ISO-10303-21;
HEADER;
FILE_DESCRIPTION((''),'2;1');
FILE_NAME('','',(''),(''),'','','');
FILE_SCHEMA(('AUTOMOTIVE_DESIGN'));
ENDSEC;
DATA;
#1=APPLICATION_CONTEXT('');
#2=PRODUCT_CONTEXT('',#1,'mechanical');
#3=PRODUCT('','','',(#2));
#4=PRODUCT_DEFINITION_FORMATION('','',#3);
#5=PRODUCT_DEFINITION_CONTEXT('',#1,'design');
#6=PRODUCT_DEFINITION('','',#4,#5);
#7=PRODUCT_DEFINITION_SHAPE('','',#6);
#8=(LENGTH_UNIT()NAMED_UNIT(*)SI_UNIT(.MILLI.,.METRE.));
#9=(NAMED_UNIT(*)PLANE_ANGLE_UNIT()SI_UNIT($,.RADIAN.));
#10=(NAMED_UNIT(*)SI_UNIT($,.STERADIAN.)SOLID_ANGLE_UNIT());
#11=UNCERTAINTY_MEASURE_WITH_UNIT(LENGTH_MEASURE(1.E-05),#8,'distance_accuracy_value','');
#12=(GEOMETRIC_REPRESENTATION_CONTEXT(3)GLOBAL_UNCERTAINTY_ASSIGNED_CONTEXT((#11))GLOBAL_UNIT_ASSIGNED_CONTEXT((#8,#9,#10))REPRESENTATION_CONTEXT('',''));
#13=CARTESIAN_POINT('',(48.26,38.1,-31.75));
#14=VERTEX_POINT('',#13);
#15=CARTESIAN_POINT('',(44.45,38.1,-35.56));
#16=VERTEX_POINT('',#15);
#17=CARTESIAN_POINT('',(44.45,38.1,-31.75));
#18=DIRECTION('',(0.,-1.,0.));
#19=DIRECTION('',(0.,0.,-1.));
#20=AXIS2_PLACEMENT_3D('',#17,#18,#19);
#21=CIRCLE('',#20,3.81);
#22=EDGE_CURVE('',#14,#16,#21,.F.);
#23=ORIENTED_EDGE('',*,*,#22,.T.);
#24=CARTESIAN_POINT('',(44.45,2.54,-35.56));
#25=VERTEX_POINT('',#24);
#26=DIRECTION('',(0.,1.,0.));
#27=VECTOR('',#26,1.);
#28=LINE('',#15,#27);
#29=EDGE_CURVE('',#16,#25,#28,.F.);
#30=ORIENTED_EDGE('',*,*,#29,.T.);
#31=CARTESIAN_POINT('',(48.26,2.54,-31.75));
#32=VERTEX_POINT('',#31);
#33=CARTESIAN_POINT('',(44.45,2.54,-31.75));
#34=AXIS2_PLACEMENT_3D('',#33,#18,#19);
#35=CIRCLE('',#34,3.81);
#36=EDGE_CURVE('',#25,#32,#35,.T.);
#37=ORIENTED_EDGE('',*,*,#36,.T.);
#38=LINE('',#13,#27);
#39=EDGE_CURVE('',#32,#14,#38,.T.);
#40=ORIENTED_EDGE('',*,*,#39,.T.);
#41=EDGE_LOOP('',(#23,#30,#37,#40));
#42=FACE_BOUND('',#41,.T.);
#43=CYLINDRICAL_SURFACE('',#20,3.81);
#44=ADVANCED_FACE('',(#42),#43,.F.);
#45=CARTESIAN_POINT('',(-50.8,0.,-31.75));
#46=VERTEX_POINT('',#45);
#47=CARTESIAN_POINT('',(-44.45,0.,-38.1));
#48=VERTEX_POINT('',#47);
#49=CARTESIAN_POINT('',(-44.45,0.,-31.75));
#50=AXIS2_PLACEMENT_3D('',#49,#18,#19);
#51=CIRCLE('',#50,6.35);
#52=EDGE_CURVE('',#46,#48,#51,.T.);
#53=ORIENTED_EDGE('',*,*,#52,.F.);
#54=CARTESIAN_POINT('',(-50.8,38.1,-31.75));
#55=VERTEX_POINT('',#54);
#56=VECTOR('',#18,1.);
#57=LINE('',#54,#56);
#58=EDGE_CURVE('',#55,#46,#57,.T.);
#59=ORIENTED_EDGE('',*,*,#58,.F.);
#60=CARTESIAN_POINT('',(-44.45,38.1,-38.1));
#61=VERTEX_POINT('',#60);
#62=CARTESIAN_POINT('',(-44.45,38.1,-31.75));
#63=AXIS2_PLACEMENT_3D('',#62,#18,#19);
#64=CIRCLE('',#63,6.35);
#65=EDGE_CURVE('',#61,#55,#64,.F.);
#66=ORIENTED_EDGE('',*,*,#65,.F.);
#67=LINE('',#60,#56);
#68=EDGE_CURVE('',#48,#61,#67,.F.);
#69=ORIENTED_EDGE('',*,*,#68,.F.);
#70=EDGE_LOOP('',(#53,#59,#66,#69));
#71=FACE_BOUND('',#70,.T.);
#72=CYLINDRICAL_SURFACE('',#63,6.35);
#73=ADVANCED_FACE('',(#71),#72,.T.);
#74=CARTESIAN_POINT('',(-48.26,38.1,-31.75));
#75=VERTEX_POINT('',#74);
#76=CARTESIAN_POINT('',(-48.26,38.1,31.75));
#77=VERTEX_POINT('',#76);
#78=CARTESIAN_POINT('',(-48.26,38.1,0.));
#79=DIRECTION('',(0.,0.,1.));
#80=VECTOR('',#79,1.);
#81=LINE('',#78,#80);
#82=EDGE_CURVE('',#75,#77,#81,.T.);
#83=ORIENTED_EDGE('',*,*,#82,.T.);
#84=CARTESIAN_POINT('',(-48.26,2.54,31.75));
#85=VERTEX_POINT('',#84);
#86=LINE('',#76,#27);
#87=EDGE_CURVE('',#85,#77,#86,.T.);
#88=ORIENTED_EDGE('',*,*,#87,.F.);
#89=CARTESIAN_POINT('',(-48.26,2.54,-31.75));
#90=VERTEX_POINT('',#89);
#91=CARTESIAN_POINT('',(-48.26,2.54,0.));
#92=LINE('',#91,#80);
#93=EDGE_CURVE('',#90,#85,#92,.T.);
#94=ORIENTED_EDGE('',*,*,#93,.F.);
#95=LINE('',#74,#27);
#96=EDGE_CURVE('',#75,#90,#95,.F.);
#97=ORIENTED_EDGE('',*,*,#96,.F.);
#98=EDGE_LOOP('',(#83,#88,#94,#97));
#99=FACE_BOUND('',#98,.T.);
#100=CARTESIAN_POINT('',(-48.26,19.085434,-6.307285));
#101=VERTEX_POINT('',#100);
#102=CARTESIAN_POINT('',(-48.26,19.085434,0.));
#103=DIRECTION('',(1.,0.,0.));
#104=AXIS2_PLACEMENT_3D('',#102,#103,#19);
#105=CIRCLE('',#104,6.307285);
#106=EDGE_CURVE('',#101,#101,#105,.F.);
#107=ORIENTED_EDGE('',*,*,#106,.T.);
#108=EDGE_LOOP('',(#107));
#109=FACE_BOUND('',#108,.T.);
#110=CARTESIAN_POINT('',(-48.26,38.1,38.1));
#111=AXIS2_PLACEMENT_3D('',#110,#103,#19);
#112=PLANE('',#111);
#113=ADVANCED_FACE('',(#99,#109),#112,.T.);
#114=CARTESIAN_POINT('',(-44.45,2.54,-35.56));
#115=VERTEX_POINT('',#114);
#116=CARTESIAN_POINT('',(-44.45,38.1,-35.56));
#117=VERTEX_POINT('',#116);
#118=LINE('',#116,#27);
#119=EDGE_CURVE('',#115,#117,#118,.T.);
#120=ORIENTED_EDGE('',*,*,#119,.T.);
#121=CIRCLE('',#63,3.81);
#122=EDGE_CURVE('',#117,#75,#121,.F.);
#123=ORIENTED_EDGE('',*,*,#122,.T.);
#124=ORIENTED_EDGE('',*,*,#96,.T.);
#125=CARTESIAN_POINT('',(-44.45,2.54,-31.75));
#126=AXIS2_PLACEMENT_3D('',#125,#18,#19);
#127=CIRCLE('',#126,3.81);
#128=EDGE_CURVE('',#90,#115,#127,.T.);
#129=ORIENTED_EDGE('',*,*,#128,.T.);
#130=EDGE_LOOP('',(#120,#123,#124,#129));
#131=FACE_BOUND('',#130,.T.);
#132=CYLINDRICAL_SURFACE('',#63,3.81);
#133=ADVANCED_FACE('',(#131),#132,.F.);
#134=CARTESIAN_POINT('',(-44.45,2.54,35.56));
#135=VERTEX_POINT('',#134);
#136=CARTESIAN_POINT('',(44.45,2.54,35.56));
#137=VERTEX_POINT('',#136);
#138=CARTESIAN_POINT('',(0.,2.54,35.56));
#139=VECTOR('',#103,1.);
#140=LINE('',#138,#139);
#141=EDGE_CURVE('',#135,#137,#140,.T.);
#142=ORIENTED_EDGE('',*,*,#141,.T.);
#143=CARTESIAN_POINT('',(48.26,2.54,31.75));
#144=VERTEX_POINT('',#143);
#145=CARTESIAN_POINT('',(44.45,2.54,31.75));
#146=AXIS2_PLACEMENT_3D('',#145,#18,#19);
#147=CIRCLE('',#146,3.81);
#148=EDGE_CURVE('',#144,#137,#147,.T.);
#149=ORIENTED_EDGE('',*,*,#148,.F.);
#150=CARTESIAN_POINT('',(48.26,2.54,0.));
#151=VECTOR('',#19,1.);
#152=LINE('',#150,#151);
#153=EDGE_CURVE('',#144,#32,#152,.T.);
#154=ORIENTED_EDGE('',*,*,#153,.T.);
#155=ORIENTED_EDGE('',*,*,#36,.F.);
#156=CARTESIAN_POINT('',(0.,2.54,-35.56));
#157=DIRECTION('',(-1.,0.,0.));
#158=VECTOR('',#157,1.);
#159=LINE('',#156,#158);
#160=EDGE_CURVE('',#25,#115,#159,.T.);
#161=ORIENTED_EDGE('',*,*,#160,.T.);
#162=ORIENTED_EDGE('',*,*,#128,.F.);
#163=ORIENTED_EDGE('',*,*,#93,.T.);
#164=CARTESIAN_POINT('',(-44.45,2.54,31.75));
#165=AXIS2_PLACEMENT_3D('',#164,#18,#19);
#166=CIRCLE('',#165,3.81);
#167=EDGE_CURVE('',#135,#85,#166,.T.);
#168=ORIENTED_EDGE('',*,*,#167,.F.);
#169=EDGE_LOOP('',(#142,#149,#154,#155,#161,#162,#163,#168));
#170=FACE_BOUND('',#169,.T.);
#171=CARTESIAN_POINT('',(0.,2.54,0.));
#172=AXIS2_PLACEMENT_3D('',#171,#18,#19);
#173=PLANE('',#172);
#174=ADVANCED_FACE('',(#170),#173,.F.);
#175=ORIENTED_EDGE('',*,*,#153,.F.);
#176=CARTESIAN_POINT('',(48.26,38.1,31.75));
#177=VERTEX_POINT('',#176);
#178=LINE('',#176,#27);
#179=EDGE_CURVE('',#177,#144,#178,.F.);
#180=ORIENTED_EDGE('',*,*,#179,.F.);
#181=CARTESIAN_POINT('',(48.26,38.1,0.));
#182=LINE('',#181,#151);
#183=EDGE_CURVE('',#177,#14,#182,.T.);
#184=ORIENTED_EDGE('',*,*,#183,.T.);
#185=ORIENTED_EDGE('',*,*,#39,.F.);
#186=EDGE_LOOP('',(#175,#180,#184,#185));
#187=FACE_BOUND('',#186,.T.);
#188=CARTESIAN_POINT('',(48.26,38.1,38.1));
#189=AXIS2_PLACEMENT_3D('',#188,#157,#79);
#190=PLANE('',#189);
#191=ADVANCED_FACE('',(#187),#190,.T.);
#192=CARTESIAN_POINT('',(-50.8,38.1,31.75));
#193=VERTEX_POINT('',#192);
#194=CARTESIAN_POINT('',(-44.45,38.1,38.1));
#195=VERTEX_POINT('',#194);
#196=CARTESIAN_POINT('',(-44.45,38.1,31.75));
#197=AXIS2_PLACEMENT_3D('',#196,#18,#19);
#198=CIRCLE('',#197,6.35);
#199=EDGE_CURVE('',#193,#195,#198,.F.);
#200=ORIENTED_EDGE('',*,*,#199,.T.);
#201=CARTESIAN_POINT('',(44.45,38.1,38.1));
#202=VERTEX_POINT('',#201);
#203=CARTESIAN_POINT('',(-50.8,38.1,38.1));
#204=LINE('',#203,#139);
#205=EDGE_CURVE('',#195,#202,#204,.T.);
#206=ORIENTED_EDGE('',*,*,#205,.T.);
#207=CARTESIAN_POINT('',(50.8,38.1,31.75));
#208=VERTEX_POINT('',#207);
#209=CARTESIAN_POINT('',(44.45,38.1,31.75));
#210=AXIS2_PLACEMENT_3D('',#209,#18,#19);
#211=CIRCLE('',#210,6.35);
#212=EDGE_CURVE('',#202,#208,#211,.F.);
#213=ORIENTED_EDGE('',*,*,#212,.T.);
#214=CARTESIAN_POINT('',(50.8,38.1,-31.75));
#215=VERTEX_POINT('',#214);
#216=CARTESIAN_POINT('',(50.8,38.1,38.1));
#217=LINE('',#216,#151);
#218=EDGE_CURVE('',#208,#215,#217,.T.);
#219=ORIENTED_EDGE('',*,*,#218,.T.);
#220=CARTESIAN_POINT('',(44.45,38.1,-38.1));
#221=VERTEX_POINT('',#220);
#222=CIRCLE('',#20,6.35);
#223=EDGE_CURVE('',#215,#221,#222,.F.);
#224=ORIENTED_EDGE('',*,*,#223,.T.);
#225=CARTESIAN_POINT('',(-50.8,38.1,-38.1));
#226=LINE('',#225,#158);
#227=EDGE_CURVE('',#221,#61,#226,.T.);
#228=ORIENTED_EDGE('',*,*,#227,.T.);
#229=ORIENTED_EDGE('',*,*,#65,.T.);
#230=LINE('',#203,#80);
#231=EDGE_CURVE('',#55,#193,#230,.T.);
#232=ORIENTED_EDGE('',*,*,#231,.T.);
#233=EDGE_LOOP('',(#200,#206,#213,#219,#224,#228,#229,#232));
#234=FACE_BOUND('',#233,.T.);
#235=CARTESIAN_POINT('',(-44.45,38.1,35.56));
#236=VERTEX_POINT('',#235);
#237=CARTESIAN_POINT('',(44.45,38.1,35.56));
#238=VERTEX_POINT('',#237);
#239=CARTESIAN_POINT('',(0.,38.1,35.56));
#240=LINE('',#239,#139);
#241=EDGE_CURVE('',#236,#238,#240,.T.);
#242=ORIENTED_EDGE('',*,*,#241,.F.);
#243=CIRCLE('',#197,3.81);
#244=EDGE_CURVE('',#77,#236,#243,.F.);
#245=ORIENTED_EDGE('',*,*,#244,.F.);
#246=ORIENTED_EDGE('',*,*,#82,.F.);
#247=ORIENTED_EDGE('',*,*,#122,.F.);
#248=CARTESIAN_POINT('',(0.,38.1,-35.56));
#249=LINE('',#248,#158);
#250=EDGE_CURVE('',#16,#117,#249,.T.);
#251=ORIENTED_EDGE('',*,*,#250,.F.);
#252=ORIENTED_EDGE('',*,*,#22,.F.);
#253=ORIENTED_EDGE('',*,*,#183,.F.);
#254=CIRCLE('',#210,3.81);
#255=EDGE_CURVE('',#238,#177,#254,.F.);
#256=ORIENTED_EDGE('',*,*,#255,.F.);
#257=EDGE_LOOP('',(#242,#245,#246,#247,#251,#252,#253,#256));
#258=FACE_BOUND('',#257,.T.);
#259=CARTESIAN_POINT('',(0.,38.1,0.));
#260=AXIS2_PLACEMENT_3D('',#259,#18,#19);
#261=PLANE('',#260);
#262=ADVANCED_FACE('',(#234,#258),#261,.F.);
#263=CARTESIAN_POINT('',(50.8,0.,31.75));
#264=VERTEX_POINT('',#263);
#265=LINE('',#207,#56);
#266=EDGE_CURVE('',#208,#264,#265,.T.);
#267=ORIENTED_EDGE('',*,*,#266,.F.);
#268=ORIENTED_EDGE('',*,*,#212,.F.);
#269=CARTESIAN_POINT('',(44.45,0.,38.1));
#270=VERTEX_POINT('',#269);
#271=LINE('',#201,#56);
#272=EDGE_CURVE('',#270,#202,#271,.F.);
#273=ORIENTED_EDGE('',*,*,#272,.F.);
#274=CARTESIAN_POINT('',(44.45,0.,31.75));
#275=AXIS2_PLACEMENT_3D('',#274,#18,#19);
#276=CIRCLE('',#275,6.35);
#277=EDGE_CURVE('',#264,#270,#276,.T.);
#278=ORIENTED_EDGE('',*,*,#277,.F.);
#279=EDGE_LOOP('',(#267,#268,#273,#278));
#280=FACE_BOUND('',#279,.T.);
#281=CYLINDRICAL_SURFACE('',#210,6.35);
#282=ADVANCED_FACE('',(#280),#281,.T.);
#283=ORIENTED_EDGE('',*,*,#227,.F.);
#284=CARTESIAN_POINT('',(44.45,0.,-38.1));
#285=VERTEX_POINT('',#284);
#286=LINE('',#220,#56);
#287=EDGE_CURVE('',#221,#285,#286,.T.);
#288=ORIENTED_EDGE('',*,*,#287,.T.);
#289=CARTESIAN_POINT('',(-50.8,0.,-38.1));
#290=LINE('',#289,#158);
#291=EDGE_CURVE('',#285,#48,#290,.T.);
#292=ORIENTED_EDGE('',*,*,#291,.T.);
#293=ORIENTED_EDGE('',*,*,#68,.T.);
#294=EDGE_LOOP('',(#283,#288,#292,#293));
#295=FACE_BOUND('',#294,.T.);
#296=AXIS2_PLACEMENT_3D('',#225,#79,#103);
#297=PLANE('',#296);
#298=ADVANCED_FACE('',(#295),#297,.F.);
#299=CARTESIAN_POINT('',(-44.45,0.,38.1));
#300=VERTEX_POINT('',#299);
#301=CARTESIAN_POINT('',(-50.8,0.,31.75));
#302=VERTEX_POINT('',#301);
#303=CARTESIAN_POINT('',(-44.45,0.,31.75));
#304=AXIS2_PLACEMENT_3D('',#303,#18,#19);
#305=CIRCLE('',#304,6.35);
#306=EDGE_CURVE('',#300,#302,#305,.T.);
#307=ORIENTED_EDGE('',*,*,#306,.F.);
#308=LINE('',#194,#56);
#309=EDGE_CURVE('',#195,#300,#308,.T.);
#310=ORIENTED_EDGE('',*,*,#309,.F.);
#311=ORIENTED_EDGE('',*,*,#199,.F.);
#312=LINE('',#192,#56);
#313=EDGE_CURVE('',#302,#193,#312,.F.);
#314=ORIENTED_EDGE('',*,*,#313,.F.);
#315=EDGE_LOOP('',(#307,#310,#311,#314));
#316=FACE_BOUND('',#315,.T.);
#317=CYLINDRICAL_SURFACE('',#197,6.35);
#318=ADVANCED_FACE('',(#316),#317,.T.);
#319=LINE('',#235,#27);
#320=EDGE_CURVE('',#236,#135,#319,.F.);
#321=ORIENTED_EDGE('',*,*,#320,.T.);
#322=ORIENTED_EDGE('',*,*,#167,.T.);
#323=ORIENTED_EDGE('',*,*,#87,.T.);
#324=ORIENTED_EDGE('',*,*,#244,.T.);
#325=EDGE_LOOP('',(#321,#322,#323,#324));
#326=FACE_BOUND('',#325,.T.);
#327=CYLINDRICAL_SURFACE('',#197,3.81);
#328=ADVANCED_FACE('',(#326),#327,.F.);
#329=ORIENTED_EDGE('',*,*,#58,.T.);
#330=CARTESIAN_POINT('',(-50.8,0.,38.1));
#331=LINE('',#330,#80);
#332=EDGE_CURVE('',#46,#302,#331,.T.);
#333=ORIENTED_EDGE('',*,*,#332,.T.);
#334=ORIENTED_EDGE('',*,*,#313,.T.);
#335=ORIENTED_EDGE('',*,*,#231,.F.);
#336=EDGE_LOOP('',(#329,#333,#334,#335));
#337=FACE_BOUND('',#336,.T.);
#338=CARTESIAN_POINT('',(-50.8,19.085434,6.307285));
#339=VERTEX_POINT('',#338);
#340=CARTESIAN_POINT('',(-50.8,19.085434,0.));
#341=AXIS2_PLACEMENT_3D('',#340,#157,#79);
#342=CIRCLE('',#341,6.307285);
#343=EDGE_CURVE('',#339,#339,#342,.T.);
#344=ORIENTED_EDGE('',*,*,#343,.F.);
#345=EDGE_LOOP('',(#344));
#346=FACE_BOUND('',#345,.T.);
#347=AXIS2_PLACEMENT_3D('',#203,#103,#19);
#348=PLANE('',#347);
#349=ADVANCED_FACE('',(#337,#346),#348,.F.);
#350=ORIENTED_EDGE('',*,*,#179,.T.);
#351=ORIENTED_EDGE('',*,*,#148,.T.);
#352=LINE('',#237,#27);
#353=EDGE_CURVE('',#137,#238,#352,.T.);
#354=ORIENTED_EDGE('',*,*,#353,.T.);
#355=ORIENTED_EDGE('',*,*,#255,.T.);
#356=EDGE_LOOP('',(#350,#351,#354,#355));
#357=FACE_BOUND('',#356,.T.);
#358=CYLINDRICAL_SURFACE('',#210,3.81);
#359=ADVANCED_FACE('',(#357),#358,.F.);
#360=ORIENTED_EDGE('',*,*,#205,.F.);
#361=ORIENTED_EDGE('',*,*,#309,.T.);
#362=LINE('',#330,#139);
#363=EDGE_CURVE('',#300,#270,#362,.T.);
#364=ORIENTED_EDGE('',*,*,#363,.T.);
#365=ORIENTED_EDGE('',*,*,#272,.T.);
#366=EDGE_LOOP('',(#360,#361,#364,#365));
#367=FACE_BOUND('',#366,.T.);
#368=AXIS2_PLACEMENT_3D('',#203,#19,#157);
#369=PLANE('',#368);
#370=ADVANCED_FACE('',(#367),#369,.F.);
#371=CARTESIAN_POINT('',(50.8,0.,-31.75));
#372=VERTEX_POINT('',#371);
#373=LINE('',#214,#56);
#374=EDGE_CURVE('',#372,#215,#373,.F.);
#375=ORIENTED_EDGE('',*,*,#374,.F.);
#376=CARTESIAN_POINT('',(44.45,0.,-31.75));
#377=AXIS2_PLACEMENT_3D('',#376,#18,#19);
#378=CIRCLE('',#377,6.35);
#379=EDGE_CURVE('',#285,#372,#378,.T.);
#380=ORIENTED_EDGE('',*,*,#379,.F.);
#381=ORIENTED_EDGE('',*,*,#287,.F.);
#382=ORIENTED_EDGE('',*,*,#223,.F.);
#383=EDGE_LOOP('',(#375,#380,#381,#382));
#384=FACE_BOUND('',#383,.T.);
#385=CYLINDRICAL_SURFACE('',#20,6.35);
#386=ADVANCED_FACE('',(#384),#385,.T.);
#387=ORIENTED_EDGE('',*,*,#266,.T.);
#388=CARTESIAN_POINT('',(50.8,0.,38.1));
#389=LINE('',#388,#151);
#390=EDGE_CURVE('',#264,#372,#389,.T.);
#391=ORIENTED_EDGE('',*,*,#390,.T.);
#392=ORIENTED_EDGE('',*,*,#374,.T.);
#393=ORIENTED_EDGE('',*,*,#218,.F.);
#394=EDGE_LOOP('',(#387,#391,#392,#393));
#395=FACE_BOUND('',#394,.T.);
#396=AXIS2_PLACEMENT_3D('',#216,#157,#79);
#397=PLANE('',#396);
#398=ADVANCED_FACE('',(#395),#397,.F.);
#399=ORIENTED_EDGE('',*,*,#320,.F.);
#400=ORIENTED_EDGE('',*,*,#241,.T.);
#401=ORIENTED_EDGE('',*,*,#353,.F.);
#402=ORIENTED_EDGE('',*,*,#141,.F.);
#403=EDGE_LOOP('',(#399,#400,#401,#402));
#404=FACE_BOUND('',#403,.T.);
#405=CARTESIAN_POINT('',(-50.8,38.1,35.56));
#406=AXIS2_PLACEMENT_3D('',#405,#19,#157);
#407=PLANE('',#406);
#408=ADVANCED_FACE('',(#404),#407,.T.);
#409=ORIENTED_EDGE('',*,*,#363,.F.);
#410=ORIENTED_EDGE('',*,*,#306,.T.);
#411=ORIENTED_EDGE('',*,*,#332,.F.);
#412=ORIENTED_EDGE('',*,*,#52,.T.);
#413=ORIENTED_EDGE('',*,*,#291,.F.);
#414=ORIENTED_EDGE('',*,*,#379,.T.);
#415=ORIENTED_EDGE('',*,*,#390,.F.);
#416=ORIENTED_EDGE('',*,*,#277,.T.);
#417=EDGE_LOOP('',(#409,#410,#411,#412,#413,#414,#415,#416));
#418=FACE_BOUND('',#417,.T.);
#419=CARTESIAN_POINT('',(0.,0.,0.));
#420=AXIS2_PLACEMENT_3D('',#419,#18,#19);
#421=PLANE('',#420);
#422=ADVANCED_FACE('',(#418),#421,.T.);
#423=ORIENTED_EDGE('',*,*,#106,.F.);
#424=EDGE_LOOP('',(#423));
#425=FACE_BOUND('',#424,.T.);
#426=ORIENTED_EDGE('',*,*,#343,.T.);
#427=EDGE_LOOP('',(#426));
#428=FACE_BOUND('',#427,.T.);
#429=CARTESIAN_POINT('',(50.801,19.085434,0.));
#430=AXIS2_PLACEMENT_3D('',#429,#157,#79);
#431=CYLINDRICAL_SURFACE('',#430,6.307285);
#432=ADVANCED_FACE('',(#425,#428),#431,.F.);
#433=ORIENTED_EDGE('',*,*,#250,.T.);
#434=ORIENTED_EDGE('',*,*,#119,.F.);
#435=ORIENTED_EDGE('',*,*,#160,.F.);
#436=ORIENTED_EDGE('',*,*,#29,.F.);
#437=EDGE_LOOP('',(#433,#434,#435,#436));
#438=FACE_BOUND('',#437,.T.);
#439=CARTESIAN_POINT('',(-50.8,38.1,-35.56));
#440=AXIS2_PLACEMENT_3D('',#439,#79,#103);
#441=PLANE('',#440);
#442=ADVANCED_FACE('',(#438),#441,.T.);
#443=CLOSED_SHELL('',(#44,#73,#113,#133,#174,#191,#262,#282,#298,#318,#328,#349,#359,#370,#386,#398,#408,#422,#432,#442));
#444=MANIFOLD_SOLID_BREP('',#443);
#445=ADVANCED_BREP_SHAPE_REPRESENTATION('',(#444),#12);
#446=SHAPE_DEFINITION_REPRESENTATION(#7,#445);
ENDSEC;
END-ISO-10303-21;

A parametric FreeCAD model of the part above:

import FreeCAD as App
import Part
import Sketcher
from FreeCAD import Vector
Q = App.Units.Quantity


def edges_at(feature, points):
    """Names of the edges that pass closest to the given points."""
    edges = feature.Shape.Edges
    near = lambda p: min(range(len(edges)), key=lambda i: edges[i].distToShape(Part.Vertex(*p))[0])
    return sorted({f"Edge{near(p) + 1}" for p in points})


def faces_at(feature, points):
    """Names of the faces that lie closest to the given points."""
    faces = feature.Shape.Faces
    near = lambda p: min(range(len(faces)), key=lambda i: faces[i].distToShape(Part.Vertex(*p))[0])
    return sorted({f"Face{near(p) + 1}" for p in points})


def add_polygon(sketch, points):
    """Adds a closed chain of lines whose ends are joined by coincident constraints."""
    first, n = sketch.GeometryCount, len(points)
    for a, b in zip(points, points[1:] + points[:1]):
        sketch.addGeometry(Part.LineSegment(App.Vector(*a, 0), App.Vector(*b, 0)), False)
    for i in range(n):
        sketch.addConstraint(Sketcher.Constraint("Coincident", first + i, 2, first + (i + 1) % n, 1))

doc = App.newDocument("Part")
body = doc.addObject("PartDesign::Body", "Body")

sketch1 = body.newObject("Sketcher::SketchObject", "Sketch")
sketch1.AttachmentSupport = (doc.getObject("XZ_Plane"), [""])
sketch1.MapMode = "FlatFace"
add_polygon(sketch1, [(-51, -38), (-51, 38), (51, 38), (51, -38)])
sketch1.addConstraint(Sketcher.Constraint("Vertical", 0))
sketch1.addConstraint(Sketcher.Constraint("Horizontal", 1))
sketch1.addConstraint(Sketcher.Constraint("Vertical", 2))
sketch1.addConstraint(Sketcher.Constraint("Horizontal", 3))
sketch1.addConstraint(Sketcher.Constraint("Symmetric", 0, 2, 2, 2, -1, 1))
sketch1.addConstraint(Sketcher.Constraint("DistanceX", 1, 1, 1, 2, Q("4 in")))
sketch1.addConstraint(Sketcher.Constraint("DistanceY", 0, 1, 0, 2, Q("3 in")))
pad1 = body.newObject("PartDesign::Pad", "Pad")
pad1.Profile = sketch1
pad1.Length = Q("1.5 in")
pad1.Reversed = True
doc.recompute()

fillet = body.newObject("PartDesign::Fillet", "Fillet")
fillet.Base = (pad1, edges_at(pad1, [
    (50.8, 19.05, 38.1),
    (-50.8, 19.05, 38.1),
    (-50.8, 19.05, -38.1),
    (50.8, 19.05, -38.1),
]))
fillet.Radius = Q("0.25 in")
doc.recompute()

thickness = body.newObject("PartDesign::Thickness", "Thickness")
thickness.Base = (fillet, faces_at(fillet, [(0, 38.1, 0)]))
thickness.Value = Q("0.1 in")
thickness.Reversed = True
thickness.Join = "Intersection"

sketch2 = body.newObject("Sketcher::SketchObject", "Sketch001")
sketch2.AttachmentSupport = (doc.getObject("YZ_Plane"), [""])
sketch2.MapMode = "FlatFace"
sketch2.AttachmentOffset = App.Placement(Vector(0, 0, -2 * 25.4), App.Rotation())
sketch2.addGeometry(Part.Circle(Vector(19, 0, 0), Vector(0, 0, 1), 6), False)
sketch2.addConstraint(Sketcher.Constraint("PointOnObject", 0, 3, -1))
sketch2.addConstraint(Sketcher.Constraint("Diameter", 0, 12.61457))
sketch2.addConstraint(Sketcher.Constraint("DistanceX", -1, 1, 0, 3, 19.085434))
pocket1 = body.newObject("PartDesign::Pocket", "Pocket")
pocket1.Profile = sketch2
pocket1.Type = "UpToFirst"
pocket1.Reversed = True

doc.recompute()
